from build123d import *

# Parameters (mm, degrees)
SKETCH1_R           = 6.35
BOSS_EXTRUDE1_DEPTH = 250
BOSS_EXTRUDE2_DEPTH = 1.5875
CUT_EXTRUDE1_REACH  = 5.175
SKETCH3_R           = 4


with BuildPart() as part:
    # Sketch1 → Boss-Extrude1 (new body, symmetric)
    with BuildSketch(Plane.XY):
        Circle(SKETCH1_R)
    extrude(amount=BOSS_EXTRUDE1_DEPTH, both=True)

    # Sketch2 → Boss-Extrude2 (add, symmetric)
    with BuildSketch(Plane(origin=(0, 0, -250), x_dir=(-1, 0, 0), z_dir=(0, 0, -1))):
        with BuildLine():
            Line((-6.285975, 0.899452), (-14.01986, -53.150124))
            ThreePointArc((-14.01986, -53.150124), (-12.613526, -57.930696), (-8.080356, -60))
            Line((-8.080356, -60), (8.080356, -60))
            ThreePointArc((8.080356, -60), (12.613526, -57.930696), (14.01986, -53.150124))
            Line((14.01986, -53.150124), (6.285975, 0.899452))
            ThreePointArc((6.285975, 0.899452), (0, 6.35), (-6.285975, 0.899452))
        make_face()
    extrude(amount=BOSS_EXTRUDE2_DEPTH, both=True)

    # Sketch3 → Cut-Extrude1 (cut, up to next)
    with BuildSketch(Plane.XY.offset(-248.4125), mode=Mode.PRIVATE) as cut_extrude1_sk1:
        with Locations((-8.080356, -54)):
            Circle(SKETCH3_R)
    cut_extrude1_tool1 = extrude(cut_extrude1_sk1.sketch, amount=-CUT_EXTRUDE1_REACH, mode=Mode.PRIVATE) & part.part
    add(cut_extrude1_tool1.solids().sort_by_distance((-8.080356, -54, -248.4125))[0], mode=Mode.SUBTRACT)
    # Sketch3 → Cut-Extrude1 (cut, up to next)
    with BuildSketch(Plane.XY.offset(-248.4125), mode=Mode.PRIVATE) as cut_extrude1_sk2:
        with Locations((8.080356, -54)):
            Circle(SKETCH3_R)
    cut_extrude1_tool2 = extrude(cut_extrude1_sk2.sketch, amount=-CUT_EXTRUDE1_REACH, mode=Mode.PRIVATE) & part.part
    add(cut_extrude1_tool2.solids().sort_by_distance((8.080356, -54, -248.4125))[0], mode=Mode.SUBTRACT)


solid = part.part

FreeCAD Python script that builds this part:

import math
import FreeCAD as App
import Part
import Sketcher
from FreeCAD import Vector
Q = App.Units.Quantity

doc = App.newDocument("Part")
body = doc.addObject("PartDesign::Body", "Body")

sketch1 = body.newObject("Sketcher::SketchObject", "Sketch")
sketch1.AttachmentSupport = (doc.getObject("XY_Plane"), [""])
sketch1.MapMode = "FlatFace"
sketch1.addGeometry(Part.Circle(Vector(0, 0, 0), Vector(0, 0, 1), 6), False)
sketch1.addConstraint([
    Sketcher.Constraint("Coincident", 0, 3, -1, 1),
    Sketcher.Constraint("Diameter", 0, Q("0.5 in")),
])
pad1 = body.newObject("PartDesign::Pad", "Pad")
pad1.Profile = sketch1
pad1.Length = 500
pad1.Midplane = True

sketch2 = body.newObject("Sketcher::SketchObject", "Sketch001")
sketch2.AttachmentSupport = (doc.getObject("XY_Plane"), [""])
sketch2.MapMode = "FlatFace"
sketch2.AttachmentOffset = App.Placement(Vector(0, 0, -250), App.Rotation())
sketch2.addGeometry([
    Part.LineSegment(Vector(6, 1, 0), Vector(14, -53, 0)),
    Part.ArcOfCircle(Part.Circle(Vector(8, -54, 0), Vector(0, 0, 1), 6), math.radians(-90), math.radians(8)),
    Part.LineSegment(Vector(8, -60, 0), Vector(-8, -60, 0)),
    Part.ArcOfCircle(Part.Circle(Vector(-8, -54, 0), Vector(0, 0, 1), 6), math.radians(172), math.radians(270)),
    Part.LineSegment(Vector(-14, -53, 0), Vector(-6, 1, 0)),
    Part.ArcOfCircle(Part.Circle(Vector(0, 0, 0), Vector(0, 0, 1), 6), math.radians(8), math.radians(172)),
], False)
sketch2.addConstraint([
    Sketcher.Constraint("Tangent", 0, 2, 1, 2),
    Sketcher.Constraint("Tangent", 1, 1, 2, 1),
    Sketcher.Constraint("Tangent", 2, 2, 3, 2),
    Sketcher.Constraint("Tangent", 3, 1, 4, 1),
    Sketcher.Constraint("Tangent", 4, 2, 5, 2),
    Sketcher.Constraint("Tangent", 5, 1, 0, 1),
    Sketcher.Constraint("Horizontal", 2),
    Sketcher.Constraint("Coincident", 5, 3, -1, 1),
    Sketcher.Constraint("Equal", 1, 3),
    Sketcher.Constraint("Horizontal", 0, 2, 3, 1),
    Sketcher.Constraint("Radius", 5, Q("0.25 in")),
    Sketcher.Constraint("Radius", 1, Q("5.999999 mm")),
    Sketcher.Constraint("DistanceX", 2, 2, 2, 1, Q("16.160712 mm")),
    Sketcher.Constraint("DistanceY", 1, 3, -1, 1, Q("54.000001 mm")),
])
pad2 = body.newObject("PartDesign::Pad", "Pad001")
pad2.Profile = sketch2
pad2.Length = Q("0.125 in")
pad2.Midplane = True

sketch3 = body.newObject("Sketcher::SketchObject", "Sketch002")
sketch3.AttachmentSupport = (doc.getObject("XY_Plane"), [""])
sketch3.MapMode = "FlatFace"
sketch3.AttachmentOffset = App.Placement(Vector(0, 0, -248.4125), App.Rotation())
sketch3.addGeometry(Part.Circle(Vector(-8.1, -54, 0), Vector(0, 0, 1), 4), False)
sketch3.addConstraint([
    Sketcher.Constraint("Diameter", 0, Q("8 mm")),
    Sketcher.Constraint("DistanceY", 0, 3, -1, 1, Q("54 mm")),
    Sketcher.Constraint("DistanceX", 0, 3, -1, 1, Q("8.080356 mm")),
])
pocket1 = body.newObject("PartDesign::Pocket", "Pocket")
pocket1.Profile = sketch3
pocket1.Type = "UpToFirst"

sketch4 = body.newObject("Sketcher::SketchObject", "Sketch003")
sketch4.AttachmentSupport = (doc.getObject("XY_Plane"), [""])
sketch4.MapMode = "FlatFace"
sketch4.AttachmentOffset = App.Placement(Vector(0, 0, -248.4125), App.Rotation())
sketch4.addGeometry(Part.Circle(Vector(8.1, -54, 0), Vector(0, 0, 1), 4), False)
sketch4.addConstraint([
    Sketcher.Constraint("Diameter", 0, Q("8 mm")),
    Sketcher.Constraint("DistanceY", 0, 3, -1, 1, Q("54 mm")),
    Sketcher.Constraint("DistanceX", -1, 1, 0, 3, Q("8.080356 mm")),
])
pocket2 = body.newObject("PartDesign::Pocket", "Pocket001")
pocket2.Profile = sketch4
pocket2.Type = "UpToFirst"

doc.recompute()
